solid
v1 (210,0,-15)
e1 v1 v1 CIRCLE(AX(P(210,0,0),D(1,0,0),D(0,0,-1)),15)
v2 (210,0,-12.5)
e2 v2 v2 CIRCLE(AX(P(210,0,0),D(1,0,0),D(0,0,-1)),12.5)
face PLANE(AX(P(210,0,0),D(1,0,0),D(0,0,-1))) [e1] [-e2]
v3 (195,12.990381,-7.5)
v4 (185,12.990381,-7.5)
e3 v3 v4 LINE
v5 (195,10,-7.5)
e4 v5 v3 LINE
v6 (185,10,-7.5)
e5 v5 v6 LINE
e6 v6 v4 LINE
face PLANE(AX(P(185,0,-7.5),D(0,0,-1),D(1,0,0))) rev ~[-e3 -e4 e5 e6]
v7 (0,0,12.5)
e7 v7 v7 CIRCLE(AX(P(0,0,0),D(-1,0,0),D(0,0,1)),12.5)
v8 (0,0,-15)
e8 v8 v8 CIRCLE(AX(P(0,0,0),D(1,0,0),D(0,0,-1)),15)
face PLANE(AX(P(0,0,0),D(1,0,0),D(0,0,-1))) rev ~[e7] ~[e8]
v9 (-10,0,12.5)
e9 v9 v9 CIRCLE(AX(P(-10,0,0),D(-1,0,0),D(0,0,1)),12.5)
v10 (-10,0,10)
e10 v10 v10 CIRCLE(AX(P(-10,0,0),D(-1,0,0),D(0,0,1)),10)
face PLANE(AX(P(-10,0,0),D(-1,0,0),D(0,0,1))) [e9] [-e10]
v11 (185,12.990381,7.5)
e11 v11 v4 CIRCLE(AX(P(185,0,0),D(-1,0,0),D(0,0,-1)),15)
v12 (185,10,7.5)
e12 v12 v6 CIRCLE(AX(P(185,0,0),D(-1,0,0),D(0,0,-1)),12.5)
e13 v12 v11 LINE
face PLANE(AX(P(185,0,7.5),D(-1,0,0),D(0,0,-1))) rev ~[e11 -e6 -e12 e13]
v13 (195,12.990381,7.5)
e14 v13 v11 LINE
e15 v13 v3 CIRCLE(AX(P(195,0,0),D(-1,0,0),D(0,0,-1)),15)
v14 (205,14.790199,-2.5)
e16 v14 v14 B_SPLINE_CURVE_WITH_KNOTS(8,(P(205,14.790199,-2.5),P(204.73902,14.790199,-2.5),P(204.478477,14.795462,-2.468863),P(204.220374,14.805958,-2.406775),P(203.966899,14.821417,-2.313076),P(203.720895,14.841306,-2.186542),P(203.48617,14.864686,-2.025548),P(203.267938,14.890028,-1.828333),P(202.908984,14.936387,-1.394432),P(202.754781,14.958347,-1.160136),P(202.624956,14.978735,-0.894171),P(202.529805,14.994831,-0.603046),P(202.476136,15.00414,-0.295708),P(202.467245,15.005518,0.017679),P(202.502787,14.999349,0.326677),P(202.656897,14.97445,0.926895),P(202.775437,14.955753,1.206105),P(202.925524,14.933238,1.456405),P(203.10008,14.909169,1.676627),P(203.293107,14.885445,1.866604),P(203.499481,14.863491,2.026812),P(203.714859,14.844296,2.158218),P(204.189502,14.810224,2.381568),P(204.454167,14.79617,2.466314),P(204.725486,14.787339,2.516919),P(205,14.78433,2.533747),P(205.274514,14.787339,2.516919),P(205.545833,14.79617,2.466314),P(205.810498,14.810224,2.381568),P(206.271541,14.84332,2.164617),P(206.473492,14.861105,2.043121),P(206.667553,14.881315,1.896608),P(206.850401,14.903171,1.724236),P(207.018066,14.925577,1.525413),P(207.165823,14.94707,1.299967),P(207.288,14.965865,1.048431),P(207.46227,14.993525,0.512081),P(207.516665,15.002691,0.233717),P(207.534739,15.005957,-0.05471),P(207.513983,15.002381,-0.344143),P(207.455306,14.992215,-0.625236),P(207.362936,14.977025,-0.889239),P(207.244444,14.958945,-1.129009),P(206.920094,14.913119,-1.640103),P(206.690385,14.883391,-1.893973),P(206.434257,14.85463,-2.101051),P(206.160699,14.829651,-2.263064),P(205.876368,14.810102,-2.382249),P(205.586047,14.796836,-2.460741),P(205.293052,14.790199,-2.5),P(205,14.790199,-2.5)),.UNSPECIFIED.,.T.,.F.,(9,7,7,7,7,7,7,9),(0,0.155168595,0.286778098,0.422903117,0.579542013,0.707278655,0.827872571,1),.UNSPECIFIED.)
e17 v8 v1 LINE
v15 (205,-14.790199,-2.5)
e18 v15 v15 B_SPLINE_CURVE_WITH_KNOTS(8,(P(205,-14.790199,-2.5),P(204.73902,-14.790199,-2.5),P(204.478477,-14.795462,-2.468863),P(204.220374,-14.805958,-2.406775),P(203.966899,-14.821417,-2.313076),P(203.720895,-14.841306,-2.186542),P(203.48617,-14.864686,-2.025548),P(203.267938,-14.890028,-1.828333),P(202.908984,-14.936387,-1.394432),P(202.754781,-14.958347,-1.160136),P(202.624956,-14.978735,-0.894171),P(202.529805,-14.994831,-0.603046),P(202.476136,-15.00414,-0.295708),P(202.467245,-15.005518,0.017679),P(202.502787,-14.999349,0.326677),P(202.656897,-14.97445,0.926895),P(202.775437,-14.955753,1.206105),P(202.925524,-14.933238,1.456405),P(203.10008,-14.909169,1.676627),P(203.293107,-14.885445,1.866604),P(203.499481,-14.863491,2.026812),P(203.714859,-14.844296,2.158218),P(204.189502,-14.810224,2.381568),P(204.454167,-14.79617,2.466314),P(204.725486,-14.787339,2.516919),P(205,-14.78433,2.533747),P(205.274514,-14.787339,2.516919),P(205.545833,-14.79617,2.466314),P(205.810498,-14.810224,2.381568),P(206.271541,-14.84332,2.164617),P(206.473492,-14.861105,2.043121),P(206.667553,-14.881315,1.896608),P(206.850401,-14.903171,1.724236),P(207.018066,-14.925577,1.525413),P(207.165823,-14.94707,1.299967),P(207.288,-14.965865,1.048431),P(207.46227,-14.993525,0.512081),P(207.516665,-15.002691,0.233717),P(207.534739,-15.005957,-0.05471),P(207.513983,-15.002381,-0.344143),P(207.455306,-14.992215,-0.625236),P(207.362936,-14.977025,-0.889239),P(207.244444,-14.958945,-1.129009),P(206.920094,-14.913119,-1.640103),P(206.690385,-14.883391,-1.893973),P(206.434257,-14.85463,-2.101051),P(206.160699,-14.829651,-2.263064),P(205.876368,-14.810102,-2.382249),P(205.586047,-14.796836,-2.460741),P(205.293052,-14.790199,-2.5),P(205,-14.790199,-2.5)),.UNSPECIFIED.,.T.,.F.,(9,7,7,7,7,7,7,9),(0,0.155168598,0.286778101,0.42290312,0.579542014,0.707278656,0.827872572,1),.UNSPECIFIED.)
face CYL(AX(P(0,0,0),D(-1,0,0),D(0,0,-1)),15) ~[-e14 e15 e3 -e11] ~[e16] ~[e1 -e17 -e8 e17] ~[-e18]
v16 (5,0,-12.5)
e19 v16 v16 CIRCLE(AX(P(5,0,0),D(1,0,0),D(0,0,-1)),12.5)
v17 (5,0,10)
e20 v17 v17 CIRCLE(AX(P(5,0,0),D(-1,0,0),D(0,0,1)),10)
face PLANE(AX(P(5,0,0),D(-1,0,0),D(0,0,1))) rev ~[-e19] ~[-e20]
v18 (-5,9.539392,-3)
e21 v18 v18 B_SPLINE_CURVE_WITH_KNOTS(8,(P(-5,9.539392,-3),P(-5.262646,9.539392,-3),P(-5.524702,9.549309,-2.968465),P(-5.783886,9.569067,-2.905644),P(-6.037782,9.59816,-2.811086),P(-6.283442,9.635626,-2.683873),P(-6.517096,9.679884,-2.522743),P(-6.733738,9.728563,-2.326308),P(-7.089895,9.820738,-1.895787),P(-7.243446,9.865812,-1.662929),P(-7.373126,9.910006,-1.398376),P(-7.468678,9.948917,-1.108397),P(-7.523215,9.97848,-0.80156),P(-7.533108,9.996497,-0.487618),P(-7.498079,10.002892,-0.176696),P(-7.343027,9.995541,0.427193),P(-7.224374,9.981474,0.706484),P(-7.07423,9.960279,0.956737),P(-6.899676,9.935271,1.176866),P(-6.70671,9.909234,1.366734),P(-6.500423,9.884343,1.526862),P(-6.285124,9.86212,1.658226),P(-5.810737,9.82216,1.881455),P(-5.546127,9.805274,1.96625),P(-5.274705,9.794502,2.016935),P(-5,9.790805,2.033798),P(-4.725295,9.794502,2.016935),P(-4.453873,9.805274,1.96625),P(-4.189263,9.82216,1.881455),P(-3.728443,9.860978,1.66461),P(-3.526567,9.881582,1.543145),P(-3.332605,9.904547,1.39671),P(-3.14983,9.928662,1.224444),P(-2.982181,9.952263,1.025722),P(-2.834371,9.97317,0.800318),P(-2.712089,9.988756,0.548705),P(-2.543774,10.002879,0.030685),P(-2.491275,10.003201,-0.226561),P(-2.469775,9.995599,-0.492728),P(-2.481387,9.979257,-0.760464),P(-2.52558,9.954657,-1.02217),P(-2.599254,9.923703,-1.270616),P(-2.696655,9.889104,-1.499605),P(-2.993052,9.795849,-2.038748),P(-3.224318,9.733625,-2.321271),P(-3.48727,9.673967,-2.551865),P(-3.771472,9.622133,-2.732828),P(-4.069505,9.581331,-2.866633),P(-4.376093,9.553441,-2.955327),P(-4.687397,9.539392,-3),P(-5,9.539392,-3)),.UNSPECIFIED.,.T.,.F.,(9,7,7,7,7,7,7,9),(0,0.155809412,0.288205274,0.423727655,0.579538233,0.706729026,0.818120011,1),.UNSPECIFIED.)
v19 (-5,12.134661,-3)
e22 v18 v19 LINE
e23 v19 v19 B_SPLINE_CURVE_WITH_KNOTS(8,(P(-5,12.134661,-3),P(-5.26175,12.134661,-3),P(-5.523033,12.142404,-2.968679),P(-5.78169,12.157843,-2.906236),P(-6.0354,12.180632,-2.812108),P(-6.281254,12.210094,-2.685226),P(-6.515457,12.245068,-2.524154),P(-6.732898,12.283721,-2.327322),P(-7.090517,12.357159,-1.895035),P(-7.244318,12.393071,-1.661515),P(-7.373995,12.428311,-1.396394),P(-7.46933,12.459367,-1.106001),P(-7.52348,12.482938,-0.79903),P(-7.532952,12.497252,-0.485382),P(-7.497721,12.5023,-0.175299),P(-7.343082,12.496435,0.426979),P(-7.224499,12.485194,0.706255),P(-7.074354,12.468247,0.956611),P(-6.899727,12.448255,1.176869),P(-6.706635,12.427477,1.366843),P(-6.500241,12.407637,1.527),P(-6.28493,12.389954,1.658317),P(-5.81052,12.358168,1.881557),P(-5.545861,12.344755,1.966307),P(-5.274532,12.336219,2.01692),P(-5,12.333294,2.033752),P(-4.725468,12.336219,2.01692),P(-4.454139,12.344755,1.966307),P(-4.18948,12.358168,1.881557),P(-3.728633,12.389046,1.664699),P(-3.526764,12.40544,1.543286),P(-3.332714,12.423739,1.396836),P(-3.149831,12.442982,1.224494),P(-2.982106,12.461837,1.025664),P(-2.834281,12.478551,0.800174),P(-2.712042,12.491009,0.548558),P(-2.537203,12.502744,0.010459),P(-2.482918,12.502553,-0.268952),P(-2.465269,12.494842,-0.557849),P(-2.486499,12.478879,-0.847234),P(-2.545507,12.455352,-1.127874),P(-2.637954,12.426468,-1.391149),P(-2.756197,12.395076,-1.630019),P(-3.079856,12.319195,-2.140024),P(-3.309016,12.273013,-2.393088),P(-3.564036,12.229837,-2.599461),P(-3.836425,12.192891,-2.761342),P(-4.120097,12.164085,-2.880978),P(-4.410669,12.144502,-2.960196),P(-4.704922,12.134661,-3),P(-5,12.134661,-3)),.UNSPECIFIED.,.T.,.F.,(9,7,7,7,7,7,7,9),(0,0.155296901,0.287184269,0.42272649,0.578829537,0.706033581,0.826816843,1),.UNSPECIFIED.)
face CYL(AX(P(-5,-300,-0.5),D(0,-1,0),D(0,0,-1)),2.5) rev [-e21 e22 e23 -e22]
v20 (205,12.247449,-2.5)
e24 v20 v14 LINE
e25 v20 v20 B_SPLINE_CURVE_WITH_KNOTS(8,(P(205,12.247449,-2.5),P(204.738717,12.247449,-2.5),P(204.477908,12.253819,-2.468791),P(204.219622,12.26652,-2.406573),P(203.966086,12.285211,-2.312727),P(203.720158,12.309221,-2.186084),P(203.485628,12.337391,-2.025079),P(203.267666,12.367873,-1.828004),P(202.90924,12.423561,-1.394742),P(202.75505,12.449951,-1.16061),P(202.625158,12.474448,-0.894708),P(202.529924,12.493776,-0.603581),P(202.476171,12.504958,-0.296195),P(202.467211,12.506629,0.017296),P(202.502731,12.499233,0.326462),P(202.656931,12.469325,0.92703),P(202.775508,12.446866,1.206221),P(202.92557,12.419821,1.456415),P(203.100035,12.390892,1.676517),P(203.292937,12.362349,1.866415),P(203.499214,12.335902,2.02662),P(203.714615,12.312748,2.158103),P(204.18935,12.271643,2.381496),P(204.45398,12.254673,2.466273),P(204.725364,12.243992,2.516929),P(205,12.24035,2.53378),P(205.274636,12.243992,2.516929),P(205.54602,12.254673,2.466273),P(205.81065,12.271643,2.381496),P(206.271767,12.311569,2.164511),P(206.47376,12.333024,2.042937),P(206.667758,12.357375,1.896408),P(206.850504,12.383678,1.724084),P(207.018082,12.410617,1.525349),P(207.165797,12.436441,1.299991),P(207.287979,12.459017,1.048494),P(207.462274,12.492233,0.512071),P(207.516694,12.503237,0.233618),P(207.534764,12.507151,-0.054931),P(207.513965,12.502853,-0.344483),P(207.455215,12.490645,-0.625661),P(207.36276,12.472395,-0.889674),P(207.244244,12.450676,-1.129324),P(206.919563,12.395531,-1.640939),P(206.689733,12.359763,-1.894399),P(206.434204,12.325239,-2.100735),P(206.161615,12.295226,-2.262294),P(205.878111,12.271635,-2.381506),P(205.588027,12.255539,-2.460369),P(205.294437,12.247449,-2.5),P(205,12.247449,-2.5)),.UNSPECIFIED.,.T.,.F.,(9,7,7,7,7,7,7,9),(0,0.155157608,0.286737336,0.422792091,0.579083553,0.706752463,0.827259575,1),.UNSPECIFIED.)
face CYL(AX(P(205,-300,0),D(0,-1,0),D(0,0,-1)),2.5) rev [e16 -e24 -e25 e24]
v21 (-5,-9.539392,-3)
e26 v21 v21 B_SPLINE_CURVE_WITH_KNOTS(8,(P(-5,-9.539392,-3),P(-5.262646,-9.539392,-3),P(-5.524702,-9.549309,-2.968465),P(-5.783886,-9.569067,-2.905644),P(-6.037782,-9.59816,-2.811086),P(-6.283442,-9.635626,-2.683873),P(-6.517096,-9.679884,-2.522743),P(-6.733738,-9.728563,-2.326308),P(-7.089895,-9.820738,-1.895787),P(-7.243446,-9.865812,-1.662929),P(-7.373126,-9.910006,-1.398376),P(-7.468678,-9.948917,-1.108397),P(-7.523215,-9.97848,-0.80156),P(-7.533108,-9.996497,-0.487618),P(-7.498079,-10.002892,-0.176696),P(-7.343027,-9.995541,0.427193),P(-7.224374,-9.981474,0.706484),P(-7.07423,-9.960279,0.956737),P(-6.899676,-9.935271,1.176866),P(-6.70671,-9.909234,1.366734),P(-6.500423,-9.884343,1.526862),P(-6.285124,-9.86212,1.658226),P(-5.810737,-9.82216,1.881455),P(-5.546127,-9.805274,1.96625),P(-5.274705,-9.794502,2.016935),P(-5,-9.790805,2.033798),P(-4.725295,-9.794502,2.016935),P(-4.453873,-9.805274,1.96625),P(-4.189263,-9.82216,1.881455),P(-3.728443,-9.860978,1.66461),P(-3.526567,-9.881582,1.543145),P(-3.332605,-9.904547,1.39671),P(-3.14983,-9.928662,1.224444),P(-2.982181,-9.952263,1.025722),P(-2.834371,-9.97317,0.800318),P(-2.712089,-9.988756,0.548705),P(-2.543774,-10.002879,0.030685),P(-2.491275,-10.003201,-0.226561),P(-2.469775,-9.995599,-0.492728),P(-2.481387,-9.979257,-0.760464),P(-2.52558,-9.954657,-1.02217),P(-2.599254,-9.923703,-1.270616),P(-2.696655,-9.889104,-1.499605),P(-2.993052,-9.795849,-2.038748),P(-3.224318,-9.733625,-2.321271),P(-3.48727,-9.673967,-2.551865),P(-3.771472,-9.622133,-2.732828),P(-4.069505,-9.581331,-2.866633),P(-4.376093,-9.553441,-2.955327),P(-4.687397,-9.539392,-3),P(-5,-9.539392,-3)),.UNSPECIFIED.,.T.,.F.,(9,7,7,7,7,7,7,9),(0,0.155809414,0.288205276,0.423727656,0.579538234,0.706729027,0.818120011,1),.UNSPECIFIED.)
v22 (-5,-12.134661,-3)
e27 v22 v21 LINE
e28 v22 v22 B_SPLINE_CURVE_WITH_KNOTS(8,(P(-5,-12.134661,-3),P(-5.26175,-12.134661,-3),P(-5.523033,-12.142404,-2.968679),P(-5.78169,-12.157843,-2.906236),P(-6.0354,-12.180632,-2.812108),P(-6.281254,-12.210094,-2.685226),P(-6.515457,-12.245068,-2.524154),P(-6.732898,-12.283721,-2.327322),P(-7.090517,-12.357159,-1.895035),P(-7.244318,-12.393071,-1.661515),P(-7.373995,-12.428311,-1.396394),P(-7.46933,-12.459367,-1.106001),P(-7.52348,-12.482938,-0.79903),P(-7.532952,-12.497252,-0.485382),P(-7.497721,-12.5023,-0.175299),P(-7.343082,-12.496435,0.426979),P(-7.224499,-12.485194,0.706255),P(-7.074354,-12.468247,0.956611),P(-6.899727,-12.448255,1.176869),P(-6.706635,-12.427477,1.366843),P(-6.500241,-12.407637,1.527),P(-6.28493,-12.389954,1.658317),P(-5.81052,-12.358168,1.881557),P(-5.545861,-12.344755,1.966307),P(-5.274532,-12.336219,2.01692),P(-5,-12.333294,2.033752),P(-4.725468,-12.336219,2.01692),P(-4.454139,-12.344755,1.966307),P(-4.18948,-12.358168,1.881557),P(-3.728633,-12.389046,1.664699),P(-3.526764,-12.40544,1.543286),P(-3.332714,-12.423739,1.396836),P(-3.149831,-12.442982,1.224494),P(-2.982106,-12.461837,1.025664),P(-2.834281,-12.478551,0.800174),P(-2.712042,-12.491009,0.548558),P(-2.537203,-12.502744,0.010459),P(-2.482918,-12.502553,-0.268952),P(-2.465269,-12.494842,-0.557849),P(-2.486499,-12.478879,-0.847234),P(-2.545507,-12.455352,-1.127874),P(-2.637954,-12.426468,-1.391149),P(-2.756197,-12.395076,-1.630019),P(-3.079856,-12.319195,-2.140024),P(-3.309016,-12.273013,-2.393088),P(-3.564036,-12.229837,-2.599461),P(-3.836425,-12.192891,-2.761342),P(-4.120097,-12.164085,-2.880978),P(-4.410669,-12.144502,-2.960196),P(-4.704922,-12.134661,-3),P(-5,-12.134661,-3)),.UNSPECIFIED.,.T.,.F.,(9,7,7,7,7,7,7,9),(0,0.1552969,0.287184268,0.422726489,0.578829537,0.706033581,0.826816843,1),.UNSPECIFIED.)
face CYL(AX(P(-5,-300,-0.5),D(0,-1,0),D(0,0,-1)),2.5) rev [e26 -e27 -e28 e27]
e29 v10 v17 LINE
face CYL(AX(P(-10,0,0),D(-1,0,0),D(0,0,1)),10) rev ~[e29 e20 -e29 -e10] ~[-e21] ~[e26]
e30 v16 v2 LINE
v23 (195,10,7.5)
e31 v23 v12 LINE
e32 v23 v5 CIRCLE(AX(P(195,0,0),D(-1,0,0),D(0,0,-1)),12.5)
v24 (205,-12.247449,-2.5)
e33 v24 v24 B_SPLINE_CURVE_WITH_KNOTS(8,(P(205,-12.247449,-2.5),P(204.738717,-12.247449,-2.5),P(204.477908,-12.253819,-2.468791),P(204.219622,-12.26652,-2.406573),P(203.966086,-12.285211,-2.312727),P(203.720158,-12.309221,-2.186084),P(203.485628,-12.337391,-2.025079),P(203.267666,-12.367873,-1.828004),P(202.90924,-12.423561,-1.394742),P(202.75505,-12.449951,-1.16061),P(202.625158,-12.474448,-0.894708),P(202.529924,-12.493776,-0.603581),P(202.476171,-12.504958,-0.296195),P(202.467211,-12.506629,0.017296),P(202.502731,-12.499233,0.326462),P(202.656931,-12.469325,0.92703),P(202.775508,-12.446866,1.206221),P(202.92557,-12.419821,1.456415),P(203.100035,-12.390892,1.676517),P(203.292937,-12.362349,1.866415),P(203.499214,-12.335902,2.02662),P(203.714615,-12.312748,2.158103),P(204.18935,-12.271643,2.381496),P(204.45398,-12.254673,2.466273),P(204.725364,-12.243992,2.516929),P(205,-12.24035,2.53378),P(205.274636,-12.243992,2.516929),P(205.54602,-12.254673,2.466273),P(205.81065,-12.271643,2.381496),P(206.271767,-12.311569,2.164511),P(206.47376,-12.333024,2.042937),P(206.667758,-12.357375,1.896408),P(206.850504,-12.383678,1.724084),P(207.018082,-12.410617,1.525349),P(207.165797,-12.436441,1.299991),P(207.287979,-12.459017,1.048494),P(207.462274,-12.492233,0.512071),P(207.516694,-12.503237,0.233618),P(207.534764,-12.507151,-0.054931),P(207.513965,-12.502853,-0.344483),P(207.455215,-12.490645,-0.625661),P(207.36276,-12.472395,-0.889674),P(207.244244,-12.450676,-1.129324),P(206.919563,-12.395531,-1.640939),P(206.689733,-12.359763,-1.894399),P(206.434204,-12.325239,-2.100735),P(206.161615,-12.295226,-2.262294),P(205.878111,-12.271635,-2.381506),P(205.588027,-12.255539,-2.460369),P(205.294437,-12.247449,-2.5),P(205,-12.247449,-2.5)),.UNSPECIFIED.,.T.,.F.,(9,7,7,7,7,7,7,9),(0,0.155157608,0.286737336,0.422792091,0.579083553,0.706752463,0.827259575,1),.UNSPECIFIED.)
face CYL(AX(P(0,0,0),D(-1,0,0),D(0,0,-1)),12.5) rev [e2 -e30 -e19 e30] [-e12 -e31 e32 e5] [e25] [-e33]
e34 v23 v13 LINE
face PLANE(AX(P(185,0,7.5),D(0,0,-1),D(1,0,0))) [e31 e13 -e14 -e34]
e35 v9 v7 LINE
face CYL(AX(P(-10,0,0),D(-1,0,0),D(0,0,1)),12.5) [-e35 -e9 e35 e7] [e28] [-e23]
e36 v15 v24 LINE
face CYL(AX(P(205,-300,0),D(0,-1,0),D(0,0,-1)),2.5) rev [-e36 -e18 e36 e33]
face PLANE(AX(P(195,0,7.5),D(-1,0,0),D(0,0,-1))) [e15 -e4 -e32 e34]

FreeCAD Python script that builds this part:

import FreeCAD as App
import Part
import Sketcher

V = App.Vector


def add_polygon(sketch, points):
    """Adds a closed chain of lines whose ends are joined by coincident constraints."""
    first, n = sketch.GeometryCount, len(points)
    for a, b in zip(points, points[1:] + points[:1]):
        sketch.addGeometry(Part.LineSegment(App.Vector(*a, 0), App.Vector(*b, 0)), False)
    for i in range(n):
        sketch.addConstraint(Sketcher.Constraint("Coincident", first + i, 2, first + (i + 1) % n, 1))

doc = App.newDocument("Part")
body = doc.addObject("PartDesign::Body", "Body")

# Sketch on YZ plane
sketch1 = body.newObject("Sketcher::SketchObject", "Sketch")
sketch1.AttachmentSupport = (doc.getObject("YZ_Plane"), [""])
sketch1.MapMode = "FlatFace"
sketch1.addGeometry(Part.Circle(V(0, 0, 0), V(0, 0, 1), 15), False)
sketch1.addGeometry(Part.Circle(V(0, 0, 0), V(0, 0, 1), 12), False)
sketch1.addConstraint(Sketcher.Constraint("Coincident", 0, 3, -1, 1))
sketch1.addConstraint(Sketcher.Constraint("Coincident", 1, 3, -1, 1))
sketch1.addConstraint(Sketcher.Constraint("Diameter", 0, 30.0))
sketch1.addConstraint(Sketcher.Constraint("Diameter", 1, 25.0))
pad1 = body.newObject("PartDesign::Pad", "Pad")
pad1.Profile = sketch1
pad1.Length = 210

# Sketch on YZ plane
sketch2 = body.newObject("Sketcher::SketchObject", "Sketch001")
sketch2.AttachmentSupport = (doc.getObject("YZ_Plane"), [""])
sketch2.MapMode = "FlatFace"
sketch2.AttachmentOffset = App.Placement(V(0, 0, -10), App.Rotation())
sketch2.addGeometry(Part.Circle(V(0, 0, 0), V(0, 0, 1), 12), False)
sketch2.addGeometry(Part.Circle(V(0, 0, 0), V(0, 0, 1), 10), False)
sketch2.addConstraint(Sketcher.Constraint("Coincident", 0, 3, -1, 1))
sketch2.addConstraint(Sketcher.Constraint("Coincident", 1, 3, -1, 1))
sketch2.addConstraint(Sketcher.Constraint("Diameter", 0, 25.0))
sketch2.addConstraint(Sketcher.Constraint("Diameter", 1, 20.0))
pad2 = body.newObject("PartDesign::Pad", "Pad001")
pad2.Profile = sketch2
pad2.Length = 15

# Sketch on XZ plane
sketch3 = body.newObject("Sketcher::SketchObject", "Sketch002")
sketch3.AttachmentSupport = (doc.getObject("XZ_Plane"), [""])
sketch3.MapMode = "FlatFace"
sketch3.addGeometry(Part.Circle(V(205, 0, 0), V(0, 0, 1), 2.5), False)
sketch3.addConstraint(Sketcher.Constraint("PointOnObject", 0, 3, -1))
sketch3.addConstraint(Sketcher.Constraint("Diameter", 0, 5.0))
sketch3.addConstraint(Sketcher.Constraint("DistanceX", -1, 1, 0, 3, 205.0))
pocket1 = body.newObject("PartDesign::Pocket", "Pocket")
pocket1.Profile = sketch3
pocket1.Type = "ThroughAll"
pocket1.Midplane = True

# Sketch on XZ plane
sketch4 = body.newObject("Sketcher::SketchObject", "Sketch003")
sketch4.AttachmentSupport = (doc.getObject("XZ_Plane"), [""])
sketch4.MapMode = "FlatFace"
sketch4.addGeometry(Part.Circle(V(-5, -0.5, 0), V(0, 0, 1), 2.5), False)
sketch4.addGeometry(Part.Circle(V(205, 0, 0), V(0, 0, 1), 2.5), False)
sketch4.addConstraint(Sketcher.Constraint("Equal", 0, 1))
sketch4.addConstraint(Sketcher.Constraint("PointOnObject", 1, 3, -1))
sketch4.addConstraint(Sketcher.Constraint("Diameter", 0, 5.0))
sketch4.addConstraint(Sketcher.Constraint("DistanceX", 0, 3, -1, 1, 5.0))
sketch4.addConstraint(Sketcher.Constraint("DistanceX", -1, 1, 1, 3, 205.0))
sketch4.addConstraint(Sketcher.Constraint("DistanceY", 0, 3, -1, 1, 0.5))
pocket2 = body.newObject("PartDesign::Pocket", "Pocket001")
pocket2.Profile = sketch4
pocket2.Type = "ThroughAll"
pocket2.Midplane = True

# Sketch on XZ plane
sketch5 = body.newObject("Sketcher::SketchObject", "Sketch004")
sketch5.AttachmentSupport = (doc.getObject("XZ_Plane"), [""])
sketch5.MapMode = "FlatFace"
add_polygon(sketch5, [(185, -8), (185, 8), (195, 8), (195, -8)])  # lines 0-3
sketch5.addConstraint(Sketcher.Constraint("Vertical", 0))
sketch5.addConstraint(Sketcher.Constraint("Horizontal", 1))
sketch5.addConstraint(Sketcher.Constraint("Vertical", 2))
sketch5.addConstraint(Sketcher.Constraint("Horizontal", 3))
sketch5.addConstraint(Sketcher.Constraint("DistanceX", 1, 1, 1, 2, 10.0))
sketch5.addConstraint(Sketcher.Constraint("DistanceY", 0, 1, 0, 2, 15.0))
sketch5.addConstraint(Sketcher.Constraint("DistanceX", -1, 1, 0, 2, 185.0))
sketch5.addConstraint(Sketcher.Constraint("DistanceY", -1, 1, 0, 2, 7.5))
pocket3 = body.newObject("PartDesign::Pocket", "Pocket002")
pocket3.Profile = sketch5
pocket3.Length = 20

doc.recompute()
